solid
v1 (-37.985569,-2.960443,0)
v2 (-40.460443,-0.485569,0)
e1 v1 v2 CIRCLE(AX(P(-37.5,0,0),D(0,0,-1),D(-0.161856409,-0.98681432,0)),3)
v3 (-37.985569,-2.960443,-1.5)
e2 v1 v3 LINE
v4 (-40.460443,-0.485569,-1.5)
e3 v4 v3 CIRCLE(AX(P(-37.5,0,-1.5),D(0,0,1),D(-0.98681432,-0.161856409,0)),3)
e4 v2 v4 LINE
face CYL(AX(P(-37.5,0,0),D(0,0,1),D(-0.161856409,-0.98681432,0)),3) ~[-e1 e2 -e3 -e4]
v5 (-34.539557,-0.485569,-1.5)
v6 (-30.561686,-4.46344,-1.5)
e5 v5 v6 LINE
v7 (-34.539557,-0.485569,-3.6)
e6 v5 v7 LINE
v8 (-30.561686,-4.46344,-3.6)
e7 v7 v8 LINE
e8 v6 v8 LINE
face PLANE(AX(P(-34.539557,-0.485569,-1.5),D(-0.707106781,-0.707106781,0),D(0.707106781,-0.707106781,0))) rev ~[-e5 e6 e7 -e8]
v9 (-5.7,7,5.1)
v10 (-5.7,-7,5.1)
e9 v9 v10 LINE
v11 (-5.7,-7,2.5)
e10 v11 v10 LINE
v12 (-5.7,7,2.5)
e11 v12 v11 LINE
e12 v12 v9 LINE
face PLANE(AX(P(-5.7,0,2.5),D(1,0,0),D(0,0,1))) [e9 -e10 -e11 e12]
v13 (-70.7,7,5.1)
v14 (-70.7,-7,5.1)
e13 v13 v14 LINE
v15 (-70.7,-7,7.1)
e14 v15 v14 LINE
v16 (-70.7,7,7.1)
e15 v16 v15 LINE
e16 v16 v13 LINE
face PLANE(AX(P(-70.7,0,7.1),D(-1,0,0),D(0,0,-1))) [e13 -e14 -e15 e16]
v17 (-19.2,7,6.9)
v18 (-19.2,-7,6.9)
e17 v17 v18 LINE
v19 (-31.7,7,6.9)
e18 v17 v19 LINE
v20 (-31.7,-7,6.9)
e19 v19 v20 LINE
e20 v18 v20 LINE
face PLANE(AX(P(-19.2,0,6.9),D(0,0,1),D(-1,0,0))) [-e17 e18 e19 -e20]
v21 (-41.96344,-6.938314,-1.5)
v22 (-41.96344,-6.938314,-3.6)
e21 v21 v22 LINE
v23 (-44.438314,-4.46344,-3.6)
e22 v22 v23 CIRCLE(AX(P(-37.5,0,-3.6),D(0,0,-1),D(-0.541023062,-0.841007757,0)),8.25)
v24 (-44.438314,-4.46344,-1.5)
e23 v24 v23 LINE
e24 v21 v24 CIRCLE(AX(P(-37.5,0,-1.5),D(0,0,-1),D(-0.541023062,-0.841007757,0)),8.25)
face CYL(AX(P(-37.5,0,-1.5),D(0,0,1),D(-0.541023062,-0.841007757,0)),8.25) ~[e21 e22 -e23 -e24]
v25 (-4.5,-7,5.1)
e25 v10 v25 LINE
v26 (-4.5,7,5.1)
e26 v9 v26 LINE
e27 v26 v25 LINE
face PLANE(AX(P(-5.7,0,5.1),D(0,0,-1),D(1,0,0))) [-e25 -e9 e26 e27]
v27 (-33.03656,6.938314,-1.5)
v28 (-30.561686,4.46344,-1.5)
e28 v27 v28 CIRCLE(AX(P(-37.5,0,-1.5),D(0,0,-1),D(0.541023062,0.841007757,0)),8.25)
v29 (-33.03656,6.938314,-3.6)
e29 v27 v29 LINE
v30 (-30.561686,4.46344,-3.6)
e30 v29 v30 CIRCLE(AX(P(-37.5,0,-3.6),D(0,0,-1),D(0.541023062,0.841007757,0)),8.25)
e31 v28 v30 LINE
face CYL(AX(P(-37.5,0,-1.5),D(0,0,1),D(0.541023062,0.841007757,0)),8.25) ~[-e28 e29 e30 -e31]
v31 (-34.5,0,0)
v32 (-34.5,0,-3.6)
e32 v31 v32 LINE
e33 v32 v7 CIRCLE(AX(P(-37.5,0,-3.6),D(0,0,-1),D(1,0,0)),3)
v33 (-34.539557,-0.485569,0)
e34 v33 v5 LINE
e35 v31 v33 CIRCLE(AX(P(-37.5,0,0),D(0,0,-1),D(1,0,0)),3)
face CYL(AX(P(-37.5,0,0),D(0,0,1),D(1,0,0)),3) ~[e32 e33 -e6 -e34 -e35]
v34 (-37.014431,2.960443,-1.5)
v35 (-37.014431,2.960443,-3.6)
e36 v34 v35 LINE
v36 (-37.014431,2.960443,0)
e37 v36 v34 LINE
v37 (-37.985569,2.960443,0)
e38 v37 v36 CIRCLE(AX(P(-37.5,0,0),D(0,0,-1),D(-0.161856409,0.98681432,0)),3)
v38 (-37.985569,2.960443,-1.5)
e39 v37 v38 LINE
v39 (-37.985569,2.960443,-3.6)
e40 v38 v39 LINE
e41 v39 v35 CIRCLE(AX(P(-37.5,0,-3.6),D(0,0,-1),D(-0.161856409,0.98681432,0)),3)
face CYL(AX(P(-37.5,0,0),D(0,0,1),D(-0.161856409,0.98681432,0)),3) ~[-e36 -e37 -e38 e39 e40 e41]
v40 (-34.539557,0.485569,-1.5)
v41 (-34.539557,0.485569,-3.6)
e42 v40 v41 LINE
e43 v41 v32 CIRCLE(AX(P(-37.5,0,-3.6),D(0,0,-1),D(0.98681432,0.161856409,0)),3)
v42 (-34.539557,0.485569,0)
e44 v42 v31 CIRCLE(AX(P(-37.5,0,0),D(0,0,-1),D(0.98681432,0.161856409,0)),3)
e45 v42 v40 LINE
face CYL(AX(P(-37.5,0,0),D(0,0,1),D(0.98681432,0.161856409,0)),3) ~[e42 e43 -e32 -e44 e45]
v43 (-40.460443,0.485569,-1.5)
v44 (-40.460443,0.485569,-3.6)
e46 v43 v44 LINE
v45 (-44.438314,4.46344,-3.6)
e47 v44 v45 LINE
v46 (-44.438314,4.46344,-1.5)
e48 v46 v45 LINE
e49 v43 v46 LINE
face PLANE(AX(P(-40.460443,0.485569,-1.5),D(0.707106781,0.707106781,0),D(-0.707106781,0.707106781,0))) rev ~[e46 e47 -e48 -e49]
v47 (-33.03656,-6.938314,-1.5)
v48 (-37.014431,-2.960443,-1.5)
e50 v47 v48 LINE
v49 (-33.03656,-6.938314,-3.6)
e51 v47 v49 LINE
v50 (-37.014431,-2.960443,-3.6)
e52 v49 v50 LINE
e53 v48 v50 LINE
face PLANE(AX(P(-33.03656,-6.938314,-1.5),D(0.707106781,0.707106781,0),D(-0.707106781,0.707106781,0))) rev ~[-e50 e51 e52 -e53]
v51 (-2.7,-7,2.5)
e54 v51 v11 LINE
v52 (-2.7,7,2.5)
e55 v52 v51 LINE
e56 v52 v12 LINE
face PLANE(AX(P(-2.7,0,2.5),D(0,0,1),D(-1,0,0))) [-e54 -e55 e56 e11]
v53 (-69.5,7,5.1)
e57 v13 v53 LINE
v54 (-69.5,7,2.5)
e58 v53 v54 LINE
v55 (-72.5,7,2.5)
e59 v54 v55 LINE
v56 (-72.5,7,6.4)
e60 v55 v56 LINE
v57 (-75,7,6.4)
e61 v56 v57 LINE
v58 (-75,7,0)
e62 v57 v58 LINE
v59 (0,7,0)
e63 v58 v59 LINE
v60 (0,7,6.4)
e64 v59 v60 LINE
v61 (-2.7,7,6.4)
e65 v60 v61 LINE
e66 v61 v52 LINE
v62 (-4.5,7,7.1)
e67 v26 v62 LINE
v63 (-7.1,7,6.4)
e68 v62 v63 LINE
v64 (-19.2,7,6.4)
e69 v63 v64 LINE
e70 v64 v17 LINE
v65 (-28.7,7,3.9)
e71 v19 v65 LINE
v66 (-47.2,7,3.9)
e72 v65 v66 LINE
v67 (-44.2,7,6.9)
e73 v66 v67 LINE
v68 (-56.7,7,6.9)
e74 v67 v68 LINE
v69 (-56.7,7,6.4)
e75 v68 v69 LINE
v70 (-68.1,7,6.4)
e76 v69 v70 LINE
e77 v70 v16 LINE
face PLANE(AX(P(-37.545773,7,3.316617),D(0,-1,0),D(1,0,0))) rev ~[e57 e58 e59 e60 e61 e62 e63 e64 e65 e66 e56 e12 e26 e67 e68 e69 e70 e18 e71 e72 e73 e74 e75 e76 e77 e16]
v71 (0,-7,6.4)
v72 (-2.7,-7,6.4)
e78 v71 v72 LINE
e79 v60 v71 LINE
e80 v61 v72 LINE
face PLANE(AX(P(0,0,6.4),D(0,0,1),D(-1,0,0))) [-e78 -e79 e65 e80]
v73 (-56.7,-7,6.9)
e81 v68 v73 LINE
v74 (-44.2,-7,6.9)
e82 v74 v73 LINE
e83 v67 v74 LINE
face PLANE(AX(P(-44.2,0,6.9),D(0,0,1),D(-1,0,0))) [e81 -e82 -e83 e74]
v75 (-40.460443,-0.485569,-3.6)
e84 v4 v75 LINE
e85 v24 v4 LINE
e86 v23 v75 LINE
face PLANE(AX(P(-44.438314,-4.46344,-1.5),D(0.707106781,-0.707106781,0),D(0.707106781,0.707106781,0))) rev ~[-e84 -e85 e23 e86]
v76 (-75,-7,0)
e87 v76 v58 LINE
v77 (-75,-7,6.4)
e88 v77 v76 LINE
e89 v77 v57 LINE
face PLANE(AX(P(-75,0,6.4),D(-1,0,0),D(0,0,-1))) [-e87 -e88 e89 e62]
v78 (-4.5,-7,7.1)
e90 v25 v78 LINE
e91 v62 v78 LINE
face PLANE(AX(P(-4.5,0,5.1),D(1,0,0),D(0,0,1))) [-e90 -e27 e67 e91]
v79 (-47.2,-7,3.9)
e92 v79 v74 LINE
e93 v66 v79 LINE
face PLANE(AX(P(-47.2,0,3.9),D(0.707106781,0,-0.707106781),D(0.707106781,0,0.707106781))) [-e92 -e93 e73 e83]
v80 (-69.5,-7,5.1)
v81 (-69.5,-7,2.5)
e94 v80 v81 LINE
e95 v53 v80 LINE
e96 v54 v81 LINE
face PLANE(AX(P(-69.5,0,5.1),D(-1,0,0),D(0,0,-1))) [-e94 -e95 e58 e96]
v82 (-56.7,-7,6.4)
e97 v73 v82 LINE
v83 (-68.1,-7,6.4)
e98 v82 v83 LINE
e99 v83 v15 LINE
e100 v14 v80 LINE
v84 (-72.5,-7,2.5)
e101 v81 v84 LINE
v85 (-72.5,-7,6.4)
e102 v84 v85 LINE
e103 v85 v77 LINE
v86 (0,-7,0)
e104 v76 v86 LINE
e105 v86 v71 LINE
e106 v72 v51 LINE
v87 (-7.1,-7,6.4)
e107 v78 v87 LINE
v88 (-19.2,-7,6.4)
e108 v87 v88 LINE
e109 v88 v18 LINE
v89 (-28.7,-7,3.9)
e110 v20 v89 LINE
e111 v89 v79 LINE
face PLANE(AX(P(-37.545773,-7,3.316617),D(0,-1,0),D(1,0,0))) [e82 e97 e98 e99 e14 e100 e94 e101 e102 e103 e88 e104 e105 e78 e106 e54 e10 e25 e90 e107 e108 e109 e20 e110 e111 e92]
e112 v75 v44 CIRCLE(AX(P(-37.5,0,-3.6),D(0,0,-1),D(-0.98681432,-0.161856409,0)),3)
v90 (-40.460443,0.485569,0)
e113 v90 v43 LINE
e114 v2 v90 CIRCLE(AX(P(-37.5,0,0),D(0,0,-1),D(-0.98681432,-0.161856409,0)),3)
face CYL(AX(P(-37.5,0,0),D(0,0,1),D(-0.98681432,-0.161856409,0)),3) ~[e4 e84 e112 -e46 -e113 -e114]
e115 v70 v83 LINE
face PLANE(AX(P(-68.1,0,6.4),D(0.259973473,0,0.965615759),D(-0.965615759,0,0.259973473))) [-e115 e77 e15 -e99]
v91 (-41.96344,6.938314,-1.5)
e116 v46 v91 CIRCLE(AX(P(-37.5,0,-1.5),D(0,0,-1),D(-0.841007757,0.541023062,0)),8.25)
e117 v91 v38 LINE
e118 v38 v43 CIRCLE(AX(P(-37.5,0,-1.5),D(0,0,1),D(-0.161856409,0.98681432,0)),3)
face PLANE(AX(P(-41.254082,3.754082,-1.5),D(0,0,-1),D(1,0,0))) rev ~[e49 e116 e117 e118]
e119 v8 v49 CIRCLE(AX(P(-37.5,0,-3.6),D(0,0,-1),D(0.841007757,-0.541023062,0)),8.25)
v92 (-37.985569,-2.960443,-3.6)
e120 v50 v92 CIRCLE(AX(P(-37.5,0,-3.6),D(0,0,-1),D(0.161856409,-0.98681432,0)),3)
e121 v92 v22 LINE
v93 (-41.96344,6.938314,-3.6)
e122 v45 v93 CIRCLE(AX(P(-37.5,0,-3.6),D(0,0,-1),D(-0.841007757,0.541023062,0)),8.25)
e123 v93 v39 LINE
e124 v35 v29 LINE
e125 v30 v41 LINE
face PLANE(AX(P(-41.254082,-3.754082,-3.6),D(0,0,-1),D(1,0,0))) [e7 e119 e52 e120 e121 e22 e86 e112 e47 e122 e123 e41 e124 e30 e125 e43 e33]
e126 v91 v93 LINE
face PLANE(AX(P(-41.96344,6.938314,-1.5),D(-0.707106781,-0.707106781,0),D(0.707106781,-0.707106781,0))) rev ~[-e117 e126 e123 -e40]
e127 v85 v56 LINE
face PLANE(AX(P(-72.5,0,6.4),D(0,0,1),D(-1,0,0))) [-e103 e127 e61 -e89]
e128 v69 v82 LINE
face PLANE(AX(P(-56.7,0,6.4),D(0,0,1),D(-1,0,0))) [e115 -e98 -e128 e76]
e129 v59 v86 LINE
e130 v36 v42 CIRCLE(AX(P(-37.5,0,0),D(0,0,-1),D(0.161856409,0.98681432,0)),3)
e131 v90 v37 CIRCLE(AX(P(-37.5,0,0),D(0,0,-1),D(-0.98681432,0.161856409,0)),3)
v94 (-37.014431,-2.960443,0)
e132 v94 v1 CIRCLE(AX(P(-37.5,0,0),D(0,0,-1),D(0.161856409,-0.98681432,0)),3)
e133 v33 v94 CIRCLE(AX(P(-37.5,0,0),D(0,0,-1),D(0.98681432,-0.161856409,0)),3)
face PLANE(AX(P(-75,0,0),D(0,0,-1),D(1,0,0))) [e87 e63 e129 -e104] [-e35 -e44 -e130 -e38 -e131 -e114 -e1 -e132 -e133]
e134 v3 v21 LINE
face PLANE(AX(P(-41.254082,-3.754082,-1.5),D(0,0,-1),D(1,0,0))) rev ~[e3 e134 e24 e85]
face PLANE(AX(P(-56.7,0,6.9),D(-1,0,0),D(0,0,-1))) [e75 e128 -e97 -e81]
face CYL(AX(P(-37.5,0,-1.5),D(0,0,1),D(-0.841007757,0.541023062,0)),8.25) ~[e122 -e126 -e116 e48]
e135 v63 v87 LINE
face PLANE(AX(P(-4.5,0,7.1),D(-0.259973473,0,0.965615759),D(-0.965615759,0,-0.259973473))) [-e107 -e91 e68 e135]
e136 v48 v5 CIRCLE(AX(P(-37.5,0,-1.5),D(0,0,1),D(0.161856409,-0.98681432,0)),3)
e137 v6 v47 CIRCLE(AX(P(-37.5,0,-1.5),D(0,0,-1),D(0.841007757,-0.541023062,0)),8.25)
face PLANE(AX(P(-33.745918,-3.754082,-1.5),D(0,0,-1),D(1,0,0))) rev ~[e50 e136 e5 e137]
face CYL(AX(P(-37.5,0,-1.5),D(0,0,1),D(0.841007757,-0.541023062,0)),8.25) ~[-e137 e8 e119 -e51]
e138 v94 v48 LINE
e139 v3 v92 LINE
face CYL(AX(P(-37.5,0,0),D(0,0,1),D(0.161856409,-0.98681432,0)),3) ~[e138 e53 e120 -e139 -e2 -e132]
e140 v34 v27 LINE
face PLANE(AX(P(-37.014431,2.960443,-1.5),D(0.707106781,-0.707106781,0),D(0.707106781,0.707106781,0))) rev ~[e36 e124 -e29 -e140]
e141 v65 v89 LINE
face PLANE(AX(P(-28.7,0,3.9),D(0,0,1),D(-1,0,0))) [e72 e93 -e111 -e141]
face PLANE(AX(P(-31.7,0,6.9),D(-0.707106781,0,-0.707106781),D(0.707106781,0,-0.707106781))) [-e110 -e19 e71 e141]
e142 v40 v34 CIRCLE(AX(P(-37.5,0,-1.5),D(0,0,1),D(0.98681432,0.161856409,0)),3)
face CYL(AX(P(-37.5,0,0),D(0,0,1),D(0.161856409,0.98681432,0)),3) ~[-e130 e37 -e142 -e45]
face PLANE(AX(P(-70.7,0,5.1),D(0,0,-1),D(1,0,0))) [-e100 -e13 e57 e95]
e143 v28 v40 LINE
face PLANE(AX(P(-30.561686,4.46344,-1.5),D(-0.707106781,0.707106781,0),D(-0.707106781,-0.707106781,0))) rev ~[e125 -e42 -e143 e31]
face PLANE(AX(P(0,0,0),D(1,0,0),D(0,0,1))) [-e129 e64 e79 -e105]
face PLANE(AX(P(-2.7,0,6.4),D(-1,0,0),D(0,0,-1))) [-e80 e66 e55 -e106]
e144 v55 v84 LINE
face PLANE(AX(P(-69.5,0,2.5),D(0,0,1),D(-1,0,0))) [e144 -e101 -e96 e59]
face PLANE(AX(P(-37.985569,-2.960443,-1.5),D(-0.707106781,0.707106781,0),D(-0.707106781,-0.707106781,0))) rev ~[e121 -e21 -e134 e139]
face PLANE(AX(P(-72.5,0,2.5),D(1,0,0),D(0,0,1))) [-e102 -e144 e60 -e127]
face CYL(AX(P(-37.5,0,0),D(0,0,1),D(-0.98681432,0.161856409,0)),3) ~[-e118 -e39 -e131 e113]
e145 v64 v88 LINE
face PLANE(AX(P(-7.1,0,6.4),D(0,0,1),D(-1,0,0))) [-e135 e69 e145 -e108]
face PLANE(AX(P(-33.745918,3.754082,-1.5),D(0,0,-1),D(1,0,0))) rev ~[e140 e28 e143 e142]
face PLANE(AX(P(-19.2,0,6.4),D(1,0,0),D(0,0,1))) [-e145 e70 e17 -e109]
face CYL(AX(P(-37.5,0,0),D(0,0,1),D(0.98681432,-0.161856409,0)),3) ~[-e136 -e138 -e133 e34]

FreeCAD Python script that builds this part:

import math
import FreeCAD as App
import Part
import Sketcher

V = App.Vector
Q = App.Units.Quantity


def add_polygon(sketch, points):
    """Adds a closed chain of lines whose ends are joined by coincident constraints."""
    first, n = sketch.GeometryCount, len(points)
    for a, b in zip(points, points[1:] + points[:1]):
        sketch.addGeometry(Part.LineSegment(App.Vector(*a, 0), App.Vector(*b, 0)), False)
    for i in range(n):
        sketch.addConstraint(Sketcher.Constraint("Coincident", first + i, 2, first + (i + 1) % n, 1))

doc = App.newDocument("Part")
body = doc.addObject("PartDesign::Body", "Body")

# Sketch on XZ plane
sketch1 = body.newObject("Sketcher::SketchObject", "Sketch")
sketch1.AttachmentSupport = (doc.getObject("XZ_Plane"), [""])
sketch1.MapMode = "FlatFace"
add_polygon(sketch1, [(-75, 0), (0, 0), (0, 6.4), (-2.7, 6.4), (-2.7, 2.5), (-5.7, 2.5), (-5.7, 5.1), (-4.5, 5.1), (-4.5, 7.1), (-7.1, 6.4), (-19.2, 6.4), (-19.2, 6.9), (-31.7, 6.9), (-28.7, 3.9), (-47.2, 3.9), (-44.2, 6.9), (-56.7, 6.9), (-56.7, 6.4), (-68.1, 6.4), (-70.7, 7.1), (-70.7, 5.1), (-69.5, 5.1), (-69.5, 2.5), (-72.5, 2.5), (-72.5, 6.4), (-75, 6.4)])  # lines 0-25
sketch1.addConstraint([
    Sketcher.Constraint("Horizontal", 0),
    Sketcher.Constraint("Vertical", 1),
    Sketcher.Constraint("Horizontal", 2),
    Sketcher.Constraint("Vertical", 3),
    Sketcher.Constraint("Horizontal", 4),
    Sketcher.Constraint("Vertical", 5),
    Sketcher.Constraint("Horizontal", 6),
    Sketcher.Constraint("Vertical", 7),
    Sketcher.Constraint("Horizontal", 9),
    Sketcher.Constraint("Vertical", 10),
    Sketcher.Constraint("Horizontal", 11),
    Sketcher.Constraint("Horizontal", 13),
    Sketcher.Constraint("Horizontal", 15),
    Sketcher.Constraint("Vertical", 16),
    Sketcher.Constraint("Horizontal", 17),
    Sketcher.Constraint("Vertical", 19),
    Sketcher.Constraint("Horizontal", 20),
    Sketcher.Constraint("Vertical", 21),
    Sketcher.Constraint("Horizontal", 22),
    Sketcher.Constraint("Vertical", 23),
    Sketcher.Constraint("Horizontal", 24),
    Sketcher.Constraint("Vertical", 25),
    Sketcher.Constraint("Coincident", 0, 2, -1, 1),
    Sketcher.Constraint("Perpendicular", 12, 14),
    Sketcher.Constraint("Horizontal", 2, 2, 8, 2),
    Sketcher.Constraint("Horizontal", 11, 2, 14, 2),
    Sketcher.Constraint("Horizontal", 9, 2, 16, 2),
    Sketcher.Constraint("Horizontal", 7, 2, 18, 2),
    Sketcher.Constraint("Horizontal", 6, 2, 19, 2),
    Sketcher.Constraint("Horizontal", 4, 2, 21, 2),
    Sketcher.Constraint("Horizontal", 17, 2, 23, 2),
    Sketcher.Constraint("Equal", 11, 15),
    Sketcher.Constraint("Equal", 6, 20),
    Sketcher.Constraint("Equal", 4, 22),
    Sketcher.Constraint("Equal", 12, 14),
    Sketcher.Constraint("Equal", 8, 18),
    Sketcher.Constraint("DistanceX", 0, 1, 0, 2, Q("75 mm")),
    Sketcher.Constraint("DistanceX", 4, 2, 4, 1, Q("3 mm")),
    Sketcher.Constraint("DistanceY", 7, 1, 7, 2, Q("2 mm")),
    Sketcher.Constraint("DistanceX", 2, 2, 2, 1, Q("2.7 mm")),
    Sketcher.Constraint("DistanceX", 6, 1, 6, 2, Q("1.2 mm")),
    Sketcher.Constraint("DistanceX", 9, 2, 9, 1, Q("12.1 mm")),
    Sketcher.Constraint("DistanceX", 11, 2, 11, 1, Q("12.5 mm")),
    Sketcher.Constraint("DistanceX", 13, 2, 13, 1, Q("18.5 mm")),
    Sketcher.Constraint("DistanceX", 17, 2, 17, 1, Q("11.4 mm")),
    Sketcher.Constraint("DistanceX", 24, 2, 24, 1, Q("2.5 mm")),
    Sketcher.Constraint("DistanceY", 1, 1, 1, 2, Q("6.4 mm")),
    Sketcher.Constraint("DistanceY", 3, 2, 3, 1, Q("3.9 mm")),
    Sketcher.Constraint("DistanceY", 5, 1, 5, 2, Q("2.6 mm")),
    Sketcher.Constraint("DistanceY", 10, 1, 10, 2, Q("0.5 mm")),
    Sketcher.Constraint("DistanceX", 11, 2, 5, 2, Q("26 mm")),
])
pad1 = body.newObject("PartDesign::Pad", "Pad")
pad1.Profile = sketch1
pad1.Length = 14
pad1.Midplane = True

# Sketch on XY plane
sketch2 = body.newObject("Sketcher::SketchObject", "Sketch001")
sketch2.AttachmentSupport = (doc.getObject("XY_Plane"), [""])
sketch2.MapMode = "FlatFace"
sketch2.addGeometry([
    Part.ArcOfCircle(Part.Circle(V(-37.5, 0, 0), V(0, 0, 1), 3), math.radians(0), math.radians(9.31)),  # 0
    Part.ArcOfCircle(Part.Circle(V(-37.5, 0, 0), V(0, 0, 1), 3), math.radians(-9.31), math.radians(0)),  # 1
    Part.ArcOfCircle(Part.Circle(V(-37.5, 0, 0), V(0, 0, 1), 3), math.radians(-81), math.radians(-9)),  # 2
    Part.ArcOfCircle(Part.Circle(V(-37.5, 0, 0), V(0, 0, 1), 3), math.radians(-99.31), math.radians(-80.69)),  # 3
    Part.ArcOfCircle(Part.Circle(V(-37.5, 0, 0), V(0, 0, 1), 3), math.radians(-171), math.radians(-99)),  # 4
    Part.ArcOfCircle(Part.Circle(V(-37.5, 0, 0), V(0, 0, 1), 3), math.radians(170.69), math.radians(189.31)),  # 5
    Part.ArcOfCircle(Part.Circle(V(-37.5, 0, 0), V(0, 0, 1), 3), math.radians(99), math.radians(171)),  # 6
    Part.ArcOfCircle(Part.Circle(V(-37.5, 0, 0), V(0, 0, 1), 3), math.radians(80.69), math.radians(99.31)),  # 7
    Part.ArcOfCircle(Part.Circle(V(-37.5, 0, 0), V(0, 0, 1), 3), math.radians(9), math.radians(81)),  # 8
], False)
sketch2.addConstraint([
    Sketcher.Constraint("Tangent", 0, 1, 1, 2),
    Sketcher.Constraint("Tangent", 1, 1, 2, 2),
    Sketcher.Constraint("Tangent", 2, 1, 3, 2),
    Sketcher.Constraint("Tangent", 3, 1, 4, 2),
    Sketcher.Constraint("Tangent", 4, 1, 5, 2),
    Sketcher.Constraint("Tangent", 5, 1, 6, 2),
    Sketcher.Constraint("Tangent", 6, 1, 7, 2),
    Sketcher.Constraint("Tangent", 7, 1, 8, 2),
    Sketcher.Constraint("Tangent", 8, 1, 0, 2),
    Sketcher.Constraint("Coincident", 2, 3, 0, 3),
    Sketcher.Constraint("Coincident", 4, 3, 0, 3),
    Sketcher.Constraint("Coincident", 6, 3, 0, 3),
    Sketcher.Constraint("Symmetric", 4, 1, 5, 1, -1),
    Sketcher.Constraint("PointOnObject", 0, 1, -1),
    Sketcher.Constraint("Horizontal", 2, 1, 3, 1),
    Sketcher.Constraint("Horizontal", 1, 1, 4, 1),
    Sketcher.Constraint("Horizontal", 6, 1, 7, 1),
    Sketcher.Constraint("Horizontal", 5, 1, 8, 1),
    Sketcher.Constraint("Vertical", 3, 1, 6, 1),
    Sketcher.Constraint("Radius", 0, Q("3 mm")),
    Sketcher.Constraint("DistanceX", 0, 3, -1, 1, Q("37.5 mm")),
    Sketcher.Constraint("DistanceY", 1, 1, -1, 1, Q("0.485569 mm")),
    Sketcher.Constraint("DistanceX", 2, 1, -1, 1, Q("37.014431 mm")),
])
pad2 = body.newObject("PartDesign::Pad", "Pad001")
pad2.Profile = sketch2
pad2.Length = 3.6
pad2.Reversed = True

# Sketch on XY plane
sketch3 = body.newObject("Sketcher::SketchObject", "Sketch002")
sketch3.AttachmentSupport = (doc.getObject("XY_Plane"), [""])
sketch3.MapMode = "FlatFace"
sketch3.AttachmentOffset = App.Placement(V(0, 0, -1.5), App.Rotation())
sketch3.addGeometry([
    Part.ArcOfCircle(Part.Circle(V(-37.5, 0, 0), V(0, 0, 1), 3), math.radians(-171), math.radians(-99)),  # 0
    Part.LineSegment(V(-38, -3, 0), V(-42, -6.9, 0)),  # 1
    Part.ArcOfCircle(Part.Circle(V(-37.5, 0, 0), V(0, 0, 1), 8.2), math.radians(-147), math.radians(-123)),  # 2
    Part.LineSegment(V(-44.4, -4.5, 0), V(-40.5, -0.5, 0)),  # 3
    Part.ArcOfCircle(Part.Circle(V(-37.5, 0, 0), V(0, 0, 1), 3), math.radians(-81), math.radians(-9)),  # 4
    Part.LineSegment(V(-34.5, -0.5, 0), V(-30.6, -4.5, 0)),  # 5
    Part.ArcOfCircle(Part.Circle(V(-37.5, 0, 0), V(0, 0, 1), 8.2), math.radians(-57), math.radians(-33)),  # 6
    Part.LineSegment(V(-33, -6.9, 0), V(-37, -3, 0)),  # 7
    Part.LineSegment(V(-42, 6.9, 0), V(-38, 3, 0)),  # 8
    Part.ArcOfCircle(Part.Circle(V(-37.5, 0, 0), V(0, 0, 1), 3), math.radians(99), math.radians(171)),  # 9
    Part.LineSegment(V(-40.5, 0.5, 0), V(-44.4, 4.5, 0)),  # 10
    Part.ArcOfCircle(Part.Circle(V(-37.5, 0, 0), V(0, 0, 1), 8.2), math.radians(123), math.radians(147)),  # 11
    Part.LineSegment(V(-30.6, 4.5, 0), V(-34.5, 0.5, 0)),  # 12
    Part.ArcOfCircle(Part.Circle(V(-37.5, 0, 0), V(0, 0, 1), 3), math.radians(9), math.radians(81)),  # 13
    Part.LineSegment(V(-37, 3, 0), V(-33, 6.9, 0)),  # 14
    Part.ArcOfCircle(Part.Circle(V(-37.5, 0, 0), V(0, 0, 1), 8.2), math.radians(33), math.radians(57)),  # 15
], False)
sketch3.addConstraint([
    Sketcher.Constraint("Coincident", 0, 2, 1, 1),
    Sketcher.Constraint("Coincident", 1, 2, 2, 2),
    Sketcher.Constraint("Coincident", 2, 1, 3, 1),
    Sketcher.Constraint("Coincident", 3, 2, 0, 1),
    Sketcher.Constraint("Coincident", 4, 2, 5, 1),
    Sketcher.Constraint("Coincident", 5, 2, 6, 2),
    Sketcher.Constraint("Coincident", 6, 1, 7, 1),
    Sketcher.Constraint("Coincident", 7, 2, 4, 1),
    Sketcher.Constraint("Coincident", 8, 2, 9, 1),
    Sketcher.Constraint("Coincident", 9, 2, 10, 1),
    Sketcher.Constraint("Coincident", 10, 2, 11, 2),
    Sketcher.Constraint("Coincident", 11, 1, 8, 1),
    Sketcher.Constraint("Coincident", 12, 2, 13, 1),
    Sketcher.Constraint("Coincident", 13, 2, 14, 1),
    Sketcher.Constraint("Coincident", 14, 2, 15, 2),
    Sketcher.Constraint("Coincident", 15, 1, 12, 1),
    Sketcher.Constraint("Coincident", 2, 3, 0, 3),
    Sketcher.Constraint("Coincident", 4, 3, 0, 3),
    Sketcher.Constraint("Coincident", 6, 3, 0, 3),
    Sketcher.Constraint("Coincident", 9, 3, 0, 3),
    Sketcher.Constraint("Coincident", 11, 3, 0, 3),
    Sketcher.Constraint("Coincident", 13, 3, 0, 3),
    Sketcher.Constraint("Coincident", 15, 3, 0, 3),
    Sketcher.Constraint("Equal", 0, 4),
    Sketcher.Constraint("Equal", 2, 6),
    Sketcher.Constraint("Equal", 4, 9),
    Sketcher.Constraint("Equal", 6, 11),
    Sketcher.Constraint("Equal", 9, 13),
    Sketcher.Constraint("Equal", 11, 15),
    Sketcher.Constraint("Symmetric", 0, 2, 8, 2, -1),
    Sketcher.Constraint("Parallel", 1, 3),
    Sketcher.Constraint("Perpendicular", 3, 5),
    Sketcher.Constraint("Parallel", 5, 7),
    Sketcher.Constraint("Parallel", 7, 8),
    Sketcher.Constraint("Parallel", 8, 10),
    Sketcher.Constraint("Perpendicular", 10, 12),
    Sketcher.Constraint("Parallel", 12, 14),
    Sketcher.Constraint("Horizontal", 3, 2, 4, 2),
    Sketcher.Constraint("Horizontal", 2, 1, 5, 2),
    Sketcher.Constraint("Horizontal", 1, 2, 6, 1),
    Sketcher.Constraint("Horizontal", 9, 2, 12, 2),
    Sketcher.Constraint("Horizontal", 8, 2, 13, 2),
    Sketcher.Constraint("Vertical", 3, 2, 9, 2),
    Sketcher.Constraint("Equal", 1, 3),
    Sketcher.Constraint("Radius", 0, Q("3 mm")),
    Sketcher.Constraint("Radius", 2, Q("8.25 mm")),
    Sketcher.Constraint("DistanceX", 0, 3, -1, 1, Q("37.5 mm")),
    Sketcher.Constraint("Distance", 1, Q("5.625559 mm")),
])
pad3 = body.newObject("PartDesign::Pad", "Pad002")
pad3.Profile = sketch3
pad3.Length = 2.1
pad3.Reversed = True

doc.recompute()
